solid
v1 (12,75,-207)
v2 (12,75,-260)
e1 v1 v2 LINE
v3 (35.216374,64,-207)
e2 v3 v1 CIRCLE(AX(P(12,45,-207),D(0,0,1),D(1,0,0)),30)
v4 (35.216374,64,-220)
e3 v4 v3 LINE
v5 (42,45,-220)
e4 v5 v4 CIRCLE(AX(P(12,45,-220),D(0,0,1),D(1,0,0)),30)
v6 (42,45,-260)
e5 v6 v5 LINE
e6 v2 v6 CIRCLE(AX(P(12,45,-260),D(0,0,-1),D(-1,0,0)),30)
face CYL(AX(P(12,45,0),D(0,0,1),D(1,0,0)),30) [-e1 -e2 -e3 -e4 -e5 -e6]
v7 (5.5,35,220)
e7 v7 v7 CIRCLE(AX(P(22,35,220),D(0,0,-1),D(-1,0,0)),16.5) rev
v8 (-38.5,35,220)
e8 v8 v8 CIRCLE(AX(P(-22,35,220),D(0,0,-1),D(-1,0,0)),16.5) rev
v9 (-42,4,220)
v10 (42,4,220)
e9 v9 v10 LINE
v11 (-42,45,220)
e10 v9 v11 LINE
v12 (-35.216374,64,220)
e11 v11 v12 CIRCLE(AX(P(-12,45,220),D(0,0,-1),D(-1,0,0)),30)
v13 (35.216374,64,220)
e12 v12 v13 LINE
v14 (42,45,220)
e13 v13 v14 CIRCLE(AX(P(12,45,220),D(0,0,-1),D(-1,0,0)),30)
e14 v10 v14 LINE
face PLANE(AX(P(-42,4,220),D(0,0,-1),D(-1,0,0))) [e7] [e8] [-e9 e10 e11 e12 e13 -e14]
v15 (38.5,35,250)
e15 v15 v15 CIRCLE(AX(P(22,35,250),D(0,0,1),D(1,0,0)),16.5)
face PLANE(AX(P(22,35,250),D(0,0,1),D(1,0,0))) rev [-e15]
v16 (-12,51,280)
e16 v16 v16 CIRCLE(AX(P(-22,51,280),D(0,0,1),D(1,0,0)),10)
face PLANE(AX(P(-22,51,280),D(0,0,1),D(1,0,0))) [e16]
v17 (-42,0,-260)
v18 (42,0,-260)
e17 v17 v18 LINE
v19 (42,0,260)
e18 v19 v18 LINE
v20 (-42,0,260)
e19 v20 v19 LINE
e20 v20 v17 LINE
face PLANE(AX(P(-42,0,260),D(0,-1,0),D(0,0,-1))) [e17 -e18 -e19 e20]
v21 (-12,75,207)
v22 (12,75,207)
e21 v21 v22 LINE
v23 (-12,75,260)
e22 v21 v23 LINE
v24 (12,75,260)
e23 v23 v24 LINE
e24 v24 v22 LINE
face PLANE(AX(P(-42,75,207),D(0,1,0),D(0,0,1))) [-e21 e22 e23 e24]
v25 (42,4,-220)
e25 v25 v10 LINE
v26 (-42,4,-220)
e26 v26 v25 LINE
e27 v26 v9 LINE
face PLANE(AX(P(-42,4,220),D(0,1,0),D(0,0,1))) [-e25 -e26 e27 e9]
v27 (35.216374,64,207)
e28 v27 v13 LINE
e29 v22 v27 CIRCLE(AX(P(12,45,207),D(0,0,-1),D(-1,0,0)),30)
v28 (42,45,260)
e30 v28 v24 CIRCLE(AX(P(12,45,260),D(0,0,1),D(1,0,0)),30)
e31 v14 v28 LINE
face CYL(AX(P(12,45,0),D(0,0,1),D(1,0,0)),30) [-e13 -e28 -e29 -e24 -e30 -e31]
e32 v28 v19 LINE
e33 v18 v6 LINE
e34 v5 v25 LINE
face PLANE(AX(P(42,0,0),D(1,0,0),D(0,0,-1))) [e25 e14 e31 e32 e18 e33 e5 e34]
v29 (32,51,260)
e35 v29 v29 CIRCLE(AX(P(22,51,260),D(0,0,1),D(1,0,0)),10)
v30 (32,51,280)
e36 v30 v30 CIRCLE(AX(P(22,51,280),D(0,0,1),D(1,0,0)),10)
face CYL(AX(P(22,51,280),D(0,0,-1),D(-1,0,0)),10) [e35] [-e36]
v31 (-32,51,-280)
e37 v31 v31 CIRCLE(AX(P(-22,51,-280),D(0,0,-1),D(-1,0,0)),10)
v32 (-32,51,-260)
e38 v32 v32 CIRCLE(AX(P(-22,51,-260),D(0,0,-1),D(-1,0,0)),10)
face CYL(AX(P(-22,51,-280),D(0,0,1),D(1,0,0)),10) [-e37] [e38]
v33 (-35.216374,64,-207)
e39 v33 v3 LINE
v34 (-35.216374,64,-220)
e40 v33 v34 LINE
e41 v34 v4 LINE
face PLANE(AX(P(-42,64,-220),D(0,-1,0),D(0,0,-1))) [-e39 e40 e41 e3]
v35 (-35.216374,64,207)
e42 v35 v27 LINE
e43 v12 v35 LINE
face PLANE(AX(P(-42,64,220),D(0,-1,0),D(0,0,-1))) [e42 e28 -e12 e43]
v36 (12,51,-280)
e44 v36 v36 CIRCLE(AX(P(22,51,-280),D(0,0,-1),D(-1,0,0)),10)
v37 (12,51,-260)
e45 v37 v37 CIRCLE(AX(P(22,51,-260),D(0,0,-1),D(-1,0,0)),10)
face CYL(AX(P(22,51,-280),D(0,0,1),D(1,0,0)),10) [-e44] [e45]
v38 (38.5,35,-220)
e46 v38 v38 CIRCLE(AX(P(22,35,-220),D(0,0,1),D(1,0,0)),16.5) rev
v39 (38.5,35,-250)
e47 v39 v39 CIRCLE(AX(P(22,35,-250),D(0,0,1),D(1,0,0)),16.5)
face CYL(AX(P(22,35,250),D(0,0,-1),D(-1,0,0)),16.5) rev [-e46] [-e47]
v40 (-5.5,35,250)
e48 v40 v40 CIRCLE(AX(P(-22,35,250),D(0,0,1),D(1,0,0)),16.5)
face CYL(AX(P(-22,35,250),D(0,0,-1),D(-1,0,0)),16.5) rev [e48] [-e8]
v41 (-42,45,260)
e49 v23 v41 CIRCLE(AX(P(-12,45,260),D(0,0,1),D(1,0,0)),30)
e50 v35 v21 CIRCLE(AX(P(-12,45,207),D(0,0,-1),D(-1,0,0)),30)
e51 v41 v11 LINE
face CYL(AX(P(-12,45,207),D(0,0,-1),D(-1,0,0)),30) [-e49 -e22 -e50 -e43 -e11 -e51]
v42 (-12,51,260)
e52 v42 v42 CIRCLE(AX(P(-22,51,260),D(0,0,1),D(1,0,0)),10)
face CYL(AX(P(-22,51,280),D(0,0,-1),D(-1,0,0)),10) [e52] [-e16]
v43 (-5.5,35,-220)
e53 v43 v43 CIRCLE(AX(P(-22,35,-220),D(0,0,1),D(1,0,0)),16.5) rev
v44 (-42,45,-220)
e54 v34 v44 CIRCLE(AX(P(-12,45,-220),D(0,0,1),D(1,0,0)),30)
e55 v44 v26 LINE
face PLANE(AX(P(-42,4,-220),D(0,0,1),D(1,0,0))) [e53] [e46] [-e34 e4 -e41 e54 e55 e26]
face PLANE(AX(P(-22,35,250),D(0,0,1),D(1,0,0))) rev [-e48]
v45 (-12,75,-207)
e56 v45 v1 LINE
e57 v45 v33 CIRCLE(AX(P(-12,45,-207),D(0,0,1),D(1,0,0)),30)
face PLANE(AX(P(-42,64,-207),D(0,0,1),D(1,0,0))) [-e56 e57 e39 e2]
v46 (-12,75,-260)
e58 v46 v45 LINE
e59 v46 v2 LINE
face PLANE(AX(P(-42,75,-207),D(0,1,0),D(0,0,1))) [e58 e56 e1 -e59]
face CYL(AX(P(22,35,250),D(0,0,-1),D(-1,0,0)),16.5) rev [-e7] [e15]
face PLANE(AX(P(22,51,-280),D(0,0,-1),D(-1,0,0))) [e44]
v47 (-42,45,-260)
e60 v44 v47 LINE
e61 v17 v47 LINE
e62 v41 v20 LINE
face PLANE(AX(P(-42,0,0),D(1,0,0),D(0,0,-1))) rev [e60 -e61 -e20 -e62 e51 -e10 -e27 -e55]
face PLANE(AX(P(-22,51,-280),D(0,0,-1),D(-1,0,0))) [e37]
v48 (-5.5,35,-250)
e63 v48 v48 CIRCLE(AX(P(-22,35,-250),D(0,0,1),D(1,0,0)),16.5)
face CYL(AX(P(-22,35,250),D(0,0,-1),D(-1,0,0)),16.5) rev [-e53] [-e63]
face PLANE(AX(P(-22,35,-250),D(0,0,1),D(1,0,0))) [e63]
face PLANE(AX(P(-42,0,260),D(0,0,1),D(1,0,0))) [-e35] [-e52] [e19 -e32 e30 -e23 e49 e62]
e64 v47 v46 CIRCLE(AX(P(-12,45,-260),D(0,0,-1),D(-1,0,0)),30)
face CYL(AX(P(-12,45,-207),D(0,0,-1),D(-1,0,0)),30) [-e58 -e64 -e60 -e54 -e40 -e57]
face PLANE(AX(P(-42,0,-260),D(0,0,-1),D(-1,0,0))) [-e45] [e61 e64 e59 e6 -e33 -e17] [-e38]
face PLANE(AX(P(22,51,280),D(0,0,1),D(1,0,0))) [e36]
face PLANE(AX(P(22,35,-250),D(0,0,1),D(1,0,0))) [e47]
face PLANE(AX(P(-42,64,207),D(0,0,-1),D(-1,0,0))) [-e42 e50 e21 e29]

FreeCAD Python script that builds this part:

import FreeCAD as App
import Part
import Sketcher


def edges_at(feature, points):
    """Names of the edges that pass closest to the given points."""
    edges = feature.Shape.Edges
    near = lambda p: min(range(len(edges)), key=lambda i: edges[i].distToShape(Part.Vertex(*p))[0])
    return sorted({f"Edge{near(p) + 1}" for p in points})

doc = App.newDocument("Part")
body = doc.addObject("PartDesign::Body", "Body")

# Sketch on YZ plane
sketch1 = doc.addObject("Sketcher::SketchObject", "Sketch")
body.addObject(sketch1)
sketch1.AttachmentSupport = (doc.YZ_Plane, [""])
sketch1.MapMode = "FlatFace"
sketch1.addGeometry([
    Part.LineSegment(App.Vector(0, 260, 0), App.Vector(0, -260, 0)),  # 0
    Part.LineSegment(App.Vector(0, -260, 0), App.Vector(75, -260, 0)),  # 1
    Part.LineSegment(App.Vector(75, -260, 0), App.Vector(75, -207, 0)),  # 2
    Part.LineSegment(App.Vector(75, -207, 0), App.Vector(64, -207, 0)),  # 3
    Part.LineSegment(App.Vector(64, -207, 0), App.Vector(64, -220, 0)),  # 4
    Part.LineSegment(App.Vector(64, -220, 0), App.Vector(4, -220, 0)),  # 5
    Part.LineSegment(App.Vector(4, -220, 0), App.Vector(4, 220, 0)),  # 6
    Part.LineSegment(App.Vector(4, 220, 0), App.Vector(64, 220, 0)),  # 7
    Part.LineSegment(App.Vector(64, 220, 0), App.Vector(64, 207, 0)),  # 8
    Part.LineSegment(App.Vector(64, 207, 0), App.Vector(75, 207, 0)),  # 9
    Part.LineSegment(App.Vector(75, 207, 0), App.Vector(75, 260, 0)),  # 10
    Part.LineSegment(App.Vector(75, 260, 0), App.Vector(0, 260, 0)),  # 11
], False)
sketch1.addConstraint([
    Sketcher.Constraint("Coincident", 0, 2, 1, 1),
    Sketcher.Constraint("Coincident", 1, 2, 2, 1),
    Sketcher.Constraint("Coincident", 2, 2, 3, 1),
    Sketcher.Constraint("Coincident", 3, 2, 4, 1),
    Sketcher.Constraint("Coincident", 4, 2, 5, 1),
    Sketcher.Constraint("Coincident", 5, 2, 6, 1),
    Sketcher.Constraint("Coincident", 6, 2, 7, 1),
    Sketcher.Constraint("Coincident", 7, 2, 8, 1),
    Sketcher.Constraint("Coincident", 8, 2, 9, 1),
    Sketcher.Constraint("Coincident", 9, 2, 10, 1),
    Sketcher.Constraint("Coincident", 10, 2, 11, 1),
    Sketcher.Constraint("Coincident", 11, 2, 0, 1),
    Sketcher.Constraint("Vertical", 0),
    Sketcher.Constraint("Horizontal", 1),
    Sketcher.Constraint("Vertical", 2),
    Sketcher.Constraint("Horizontal", 3),
    Sketcher.Constraint("Vertical", 4),
    Sketcher.Constraint("Horizontal", 5),
    Sketcher.Constraint("Vertical", 6),
    Sketcher.Constraint("Horizontal", 7),
    Sketcher.Constraint("Vertical", 8),
    Sketcher.Constraint("Horizontal", 9),
    Sketcher.Constraint("Vertical", 10),
    Sketcher.Constraint("Horizontal", 11),
    Sketcher.Constraint("Symmetric", 0, 2, 11, 2, -1, 1),
    Sketcher.Constraint("Symmetric", 4, 2, 7, 2, -1),
    Sketcher.Constraint("Symmetric", 2, 2, 9, 2, -1),
    Sketcher.Constraint("DistanceX", 1, 1, 1, 2, 75.0),
    Sketcher.Constraint("DistanceX", 3, 2, 3, 1, 11.0),
    Sketcher.Constraint("DistanceX", 5, 2, 5, 1, 60.0),
    Sketcher.Constraint("DistanceY", 0, 2, 0, 1, 520.0),
    Sketcher.Constraint("DistanceY", 2, 1, 2, 2, 53.0),
    Sketcher.Constraint("DistanceY", 4, 2, 4, 1, 13.0),
])
pad1 = doc.addObject("PartDesign::Pad", "Pad")
body.addObject(pad1)
pad1.Profile = sketch1
pad1.Type = "TwoLengths"
pad1.Length = 42
pad1.Length2 = 42
doc.recompute()

fillet = doc.addObject("PartDesign::Fillet", "Fillet")
body.addObject(fillet)
fillet.Base = (pad1, edges_at(pad1, [
    (-42, 75, -233.5),
    (42, 75, -233.5),
    (-42, 75, 233.5),
    (42, 75, 233.5),
]))
fillet.Radius = 30

# Sketch on XY plane
sketch2 = doc.addObject("Sketcher::SketchObject", "Sketch001")
body.addObject(sketch2)
sketch2.AttachmentSupport = (doc.XY_Plane, [""])
sketch2.MapMode = "FlatFace"
sketch2.addGeometry([
    Part.Circle(App.Vector(22, 35, 0), App.Vector(0, 0, 1), 16.5),
    Part.Circle(App.Vector(-22, 35, 0), App.Vector(0, 0, 1), 16.5),
], False)
sketch2.addConstraint([
    Sketcher.Constraint("Equal", 0, 1),
    Sketcher.Constraint("Symmetric", 0, 3, 1, 3, -2),
    Sketcher.Constraint("Diameter", 0, 33.0),
    Sketcher.Constraint("DistanceX", -1, 1, 0, 3, 22.0),
    Sketcher.Constraint("DistanceY", -1, 1, 0, 3, 35.0),
])
pocket1 = doc.addObject("PartDesign::Pocket", "Pocket")
body.addObject(pocket1)
pocket1.Profile = sketch2
pocket1.Type = "TwoLengths"
pocket1.Length = 250
pocket1.Length2 = 250
pocket1.Reversed = True

# Sketch on XY plane
sketch3 = doc.addObject("Sketcher::SketchObject", "Sketch002")
body.addObject(sketch3)
sketch3.AttachmentSupport = (doc.XY_Plane, [""])
sketch3.MapMode = "FlatFace"
sketch3.AttachmentOffset = App.Placement(App.Vector(0, 0, 260), App.Rotation())
sketch3.addGeometry([
    Part.Circle(App.Vector(22, 51, 0), App.Vector(0, 0, 1), 10),
    Part.Circle(App.Vector(-22, 51, 0), App.Vector(0, 0, 1), 10),
], False)
sketch3.addConstraint([
    Sketcher.Constraint("Equal", 0, 1),
    Sketcher.Constraint("Symmetric", 0, 3, 1, 3, -2),
    Sketcher.Constraint("Diameter", 0, 20.0),
    Sketcher.Constraint("DistanceX", -1, 1, 0, 3, 22.0),
    Sketcher.Constraint("DistanceY", -1, 1, 0, 3, 51.0),
])
pad2 = doc.addObject("PartDesign::Pad", "Pad001")
body.addObject(pad2)
pad2.Profile = sketch3
pad2.Length = 20

# Sketch on XY plane
sketch4 = doc.addObject("Sketcher::SketchObject", "Sketch003")
body.addObject(sketch4)
sketch4.AttachmentSupport = (doc.XY_Plane, [""])
sketch4.MapMode = "FlatFace"
sketch4.AttachmentOffset = App.Placement(App.Vector(0, 0, -280), App.Rotation())
sketch4.addGeometry([
    Part.Circle(App.Vector(-22, 51, 0), App.Vector(0, 0, 1), 10),
    Part.Circle(App.Vector(22, 51, 0), App.Vector(0, 0, 1), 10),
], False)
sketch4.addConstraint([
    Sketcher.Constraint("Equal", 0, 1),
    Sketcher.Constraint("Symmetric", 0, 3, 1, 3, -2),
    Sketcher.Constraint("Diameter", 0, 20.0),
    Sketcher.Constraint("DistanceX", 0, 3, -1, 1, 22.0),
    Sketcher.Constraint("DistanceY", -1, 1, 0, 3, 51.0),
])
pad3 = doc.addObject("PartDesign::Pad", "Pad002")
body.addObject(pad3)
pad3.Profile = sketch4
pad3.Length = 20

doc.recompute()
